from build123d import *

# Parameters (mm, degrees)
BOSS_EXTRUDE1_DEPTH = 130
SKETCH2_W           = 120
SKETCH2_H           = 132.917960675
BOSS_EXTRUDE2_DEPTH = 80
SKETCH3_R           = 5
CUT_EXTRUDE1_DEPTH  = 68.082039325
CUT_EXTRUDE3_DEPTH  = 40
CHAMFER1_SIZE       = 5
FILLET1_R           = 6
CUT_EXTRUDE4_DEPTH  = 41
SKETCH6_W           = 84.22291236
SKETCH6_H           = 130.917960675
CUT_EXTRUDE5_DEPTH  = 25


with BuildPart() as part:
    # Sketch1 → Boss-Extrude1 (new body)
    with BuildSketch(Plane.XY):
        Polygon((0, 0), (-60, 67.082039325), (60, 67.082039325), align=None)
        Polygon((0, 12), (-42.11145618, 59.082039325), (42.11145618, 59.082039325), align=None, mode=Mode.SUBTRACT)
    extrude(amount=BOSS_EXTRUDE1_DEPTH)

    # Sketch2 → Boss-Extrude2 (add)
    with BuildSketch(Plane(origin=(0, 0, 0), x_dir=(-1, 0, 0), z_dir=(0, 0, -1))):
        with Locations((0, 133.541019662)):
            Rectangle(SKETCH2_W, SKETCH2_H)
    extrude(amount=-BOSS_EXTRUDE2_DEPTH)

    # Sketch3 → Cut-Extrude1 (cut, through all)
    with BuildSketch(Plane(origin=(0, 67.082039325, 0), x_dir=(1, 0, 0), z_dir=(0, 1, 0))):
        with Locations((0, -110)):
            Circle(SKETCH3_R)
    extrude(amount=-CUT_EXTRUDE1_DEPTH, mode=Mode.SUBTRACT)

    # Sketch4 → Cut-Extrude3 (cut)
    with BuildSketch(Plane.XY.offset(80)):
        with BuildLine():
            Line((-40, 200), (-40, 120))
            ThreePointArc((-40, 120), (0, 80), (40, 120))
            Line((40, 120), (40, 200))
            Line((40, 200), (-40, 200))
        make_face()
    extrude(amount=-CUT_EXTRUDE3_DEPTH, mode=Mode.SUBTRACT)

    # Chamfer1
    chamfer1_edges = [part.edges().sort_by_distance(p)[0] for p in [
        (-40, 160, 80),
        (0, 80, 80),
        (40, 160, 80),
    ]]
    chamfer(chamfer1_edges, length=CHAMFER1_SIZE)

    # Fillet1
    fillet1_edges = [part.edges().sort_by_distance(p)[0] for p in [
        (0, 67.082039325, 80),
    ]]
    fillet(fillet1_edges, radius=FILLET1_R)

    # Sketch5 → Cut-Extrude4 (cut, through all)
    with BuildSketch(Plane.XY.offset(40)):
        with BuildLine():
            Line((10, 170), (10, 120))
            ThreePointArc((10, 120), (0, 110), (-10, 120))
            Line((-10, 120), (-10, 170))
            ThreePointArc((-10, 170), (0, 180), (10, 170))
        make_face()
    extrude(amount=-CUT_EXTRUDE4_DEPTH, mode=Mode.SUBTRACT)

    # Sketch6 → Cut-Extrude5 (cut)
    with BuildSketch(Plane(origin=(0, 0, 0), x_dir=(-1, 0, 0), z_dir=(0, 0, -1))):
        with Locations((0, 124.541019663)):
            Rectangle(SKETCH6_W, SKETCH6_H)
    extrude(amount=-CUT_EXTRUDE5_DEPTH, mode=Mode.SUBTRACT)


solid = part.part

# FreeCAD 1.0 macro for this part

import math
import FreeCAD as App
import Part
import Sketcher

V = App.Vector
Q = App.Units.Quantity


def edges_at(feature, points):
    """Names of the edges that pass closest to the given points."""
    edges = feature.Shape.Edges
    near = lambda p: min(range(len(edges)), key=lambda i: edges[i].distToShape(Part.Vertex(*p))[0])
    return sorted({f"Edge{near(p) + 1}" for p in points})

doc = App.newDocument("Part")
body = doc.addObject("PartDesign::Body", "Body")

sketch1 = body.newObject("Sketcher::SketchObject", "Sketch")
sketch1.AttachmentSupport = (doc.getObject("XY_Plane"), [""])
sketch1.MapMode = "FlatFace"
sketch1.addGeometry(Part.LineSegment(V(-60, 67, 0), V(0, 0, 0)), False)
sketch1.addGeometry(Part.LineSegment(V(0, 0, 0), V(60, 67, 0)), False)
sketch1.addGeometry(Part.LineSegment(V(60, 67, 0), V(-60, 67, 0)), False)
sketch1.addGeometry(Part.LineSegment(V(0, 12, 0), V(-42, 59, 0)), False)
sketch1.addGeometry(Part.LineSegment(V(-42, 59, 0), V(42, 59, 0)), False)
sketch1.addGeometry(Part.LineSegment(V(42, 59, 0), V(0, 12, 0)), False)
sketch1.addConstraint(Sketcher.Constraint("Coincident", 0, 2, 1, 1))
sketch1.addConstraint(Sketcher.Constraint("Coincident", 1, 2, 2, 1))
sketch1.addConstraint(Sketcher.Constraint("Coincident", 2, 2, 0, 1))
sketch1.addConstraint(Sketcher.Constraint("Coincident", 3, 2, 4, 1))
sketch1.addConstraint(Sketcher.Constraint("Coincident", 4, 2, 5, 1))
sketch1.addConstraint(Sketcher.Constraint("Coincident", 5, 2, 3, 1))
sketch1.addConstraint(Sketcher.Constraint("Horizontal", 2))
sketch1.addConstraint(Sketcher.Constraint("Horizontal", 4))
sketch1.addConstraint(Sketcher.Constraint("Coincident", 0, 2, -1, 1))
sketch1.addConstraint(Sketcher.Constraint("PointOnObject", 5, 2, -2))
sketch1.addConstraint(Sketcher.Constraint("Parallel", 0, 3))
sketch1.addConstraint(Sketcher.Constraint("Parallel", 1, 5))
sketch1.addConstraint(Sketcher.Constraint("Equal", 0, 1))
sketch1.addConstraint(Sketcher.Constraint("DistanceX", 2, 2, 2, 1, Q("120 mm")))
sketch1.addConstraint(Sketcher.Constraint("Distance", 0, Q("90 mm")))
sketch1.addConstraint(Sketcher.Constraint("DistanceY", -1, 1, 5, 2, Q("12 mm")))
sketch1.addConstraint(Sketcher.Constraint("DistanceY", 3, 2, 2, 2, Q("8 mm")))
pad1 = body.newObject("PartDesign::Pad", "Pad")
pad1.Profile = sketch1
pad1.Length = 130

sketch2 = body.newObject("Sketcher::SketchObject", "Sketch001")
sketch2.AttachmentSupport = (doc.getObject("XY_Plane"), [""])
sketch2.MapMode = "FlatFace"
sketch2.addGeometry(Part.LineSegment(V(60, 200, 0), V(60, 67, 0)), False)
sketch2.addGeometry(Part.LineSegment(V(60, 67, 0), V(-60, 67, 0)), False)
sketch2.addGeometry(Part.LineSegment(V(-60, 67, 0), V(-60, 200, 0)), False)
sketch2.addGeometry(Part.LineSegment(V(-60, 200, 0), V(60, 200, 0)), False)
sketch2.addConstraint(Sketcher.Constraint("Coincident", 0, 2, 1, 1))
sketch2.addConstraint(Sketcher.Constraint("Coincident", 1, 2, 2, 1))
sketch2.addConstraint(Sketcher.Constraint("Coincident", 2, 2, 3, 1))
sketch2.addConstraint(Sketcher.Constraint("Coincident", 3, 2, 0, 1))
sketch2.addConstraint(Sketcher.Constraint("Vertical", 0))
sketch2.addConstraint(Sketcher.Constraint("Horizontal", 1))
sketch2.addConstraint(Sketcher.Constraint("Vertical", 2))
sketch2.addConstraint(Sketcher.Constraint("Horizontal", 3))
sketch2.addConstraint(Sketcher.Constraint("DistanceX", 1, 2, 1, 1, Q("120 mm")))
sketch2.addConstraint(Sketcher.Constraint("DistanceX", -1, 1, 0, 2, Q("60 mm")))
sketch2.addConstraint(Sketcher.Constraint("DistanceY", -1, 1, 2, 2, Q("200 mm")))
sketch2.addConstraint(Sketcher.Constraint("DistanceY", 0, 2, 0, 1, Q("132.917961 mm")))
pad2 = body.newObject("PartDesign::Pad", "Pad001")
pad2.Profile = sketch2
pad2.Length = 80

sketch3 = body.newObject("Sketcher::SketchObject", "Sketch002")
sketch3.AttachmentSupport = (doc.getObject("XZ_Plane"), [""])
sketch3.MapMode = "FlatFace"
sketch3.AttachmentOffset = App.Placement(V(0, 0, -67.082039), App.Rotation())
sketch3.addGeometry(Part.Circle(V(0, 110, 0), V(0, 0, 1), 5), False)
sketch3.addConstraint(Sketcher.Constraint("PointOnObject", 0, 3, -2))
sketch3.addConstraint(Sketcher.Constraint("Diameter", 0, Q("10 mm")))
sketch3.addConstraint(Sketcher.Constraint("DistanceY", -1, 1, 0, 3, Q("110 mm")))
pocket1 = body.newObject("PartDesign::Pocket", "Pocket")
pocket1.Profile = sketch3
pocket1.Type = "ThroughAll"
pocket1.Reversed = True

sketch4 = body.newObject("Sketcher::SketchObject", "Sketch003")
sketch4.AttachmentSupport = (doc.getObject("XY_Plane"), [""])
sketch4.MapMode = "FlatFace"
sketch4.AttachmentOffset = App.Placement(V(0, 0, 80), App.Rotation())
sketch4.addGeometry(Part.LineSegment(V(-40, 200, 0), V(-40, 120, 0)), False)
sketch4.addGeometry(Part.ArcOfCircle(Part.Circle(V(0, 120, 0), V(0, 0, 1), 40), math.radians(180), math.radians(360)), False)
sketch4.addGeometry(Part.LineSegment(V(40, 120, 0), V(40, 200, 0)), False)
sketch4.addGeometry(Part.LineSegment(V(40, 200, 0), V(-40, 200, 0)), False)
sketch4.addConstraint(Sketcher.Constraint("Tangent", 0, 2, 1, 1))
sketch4.addConstraint(Sketcher.Constraint("Tangent", 1, 2, 2, 1))
sketch4.addConstraint(Sketcher.Constraint("Coincident", 2, 2, 3, 1))
sketch4.addConstraint(Sketcher.Constraint("Coincident", 3, 2, 0, 1))
sketch4.addConstraint(Sketcher.Constraint("Vertical", 0))
sketch4.addConstraint(Sketcher.Constraint("Vertical", 2))
sketch4.addConstraint(Sketcher.Constraint("Horizontal", 3))
sketch4.addConstraint(Sketcher.Constraint("PointOnObject", 1, 3, -2))
sketch4.addConstraint(Sketcher.Constraint("Equal", 3, 0))
sketch4.addConstraint(Sketcher.Constraint("Radius", 1, Q("40 mm")))
sketch4.addConstraint(Sketcher.Constraint("DistanceY", -1, 1, 1, 3, Q("120 mm")))
pocket2 = body.newObject("PartDesign::Pocket", "Pocket001")
pocket2.Profile = sketch4
pocket2.Length = 40
doc.recompute()

chamfer = body.newObject("PartDesign::Chamfer", "Chamfer")
chamfer.Base = (pocket2, edges_at(pocket2, [(-40, 160, 80), (0, 80, 80), (40, 160, 80)]))
chamfer.Size = 5
doc.recompute()

fillet = body.newObject("PartDesign::Fillet", "Fillet")
fillet.Base = (chamfer, edges_at(chamfer, [(0, 67.082, 80)]))
fillet.Radius = 6

sketch5 = body.newObject("Sketcher::SketchObject", "Sketch004")
sketch5.AttachmentSupport = (doc.getObject("XY_Plane"), [""])
sketch5.MapMode = "FlatFace"
sketch5.AttachmentOffset = App.Placement(V(0, 0, 40), App.Rotation())
sketch5.addGeometry(Part.LineSegment(V(10, 120, 0), V(10, 170, 0)), False)
sketch5.addGeometry(Part.ArcOfCircle(Part.Circle(V(0, 170, 0), V(0, 0, 1), 10), math.radians(0), math.radians(180)), False)
sketch5.addGeometry(Part.LineSegment(V(-10, 170, 0), V(-10, 120, 0)), False)
sketch5.addGeometry(Part.ArcOfCircle(Part.Circle(V(0, 120, 0), V(0, 0, 1), 10), math.radians(180), math.radians(360)), False)
sketch5.addConstraint(Sketcher.Constraint("Tangent", 0, 2, 1, 1))
sketch5.addConstraint(Sketcher.Constraint("Tangent", 1, 2, 2, 1))
sketch5.addConstraint(Sketcher.Constraint("Tangent", 2, 2, 3, 1))
sketch5.addConstraint(Sketcher.Constraint("Tangent", 3, 2, 0, 1))
sketch5.addConstraint(Sketcher.Constraint("Vertical", 0))
sketch5.addConstraint(Sketcher.Constraint("Vertical", 2))
sketch5.addConstraint(Sketcher.Constraint("PointOnObject", 1, 3, -2))
sketch5.addConstraint(Sketcher.Constraint("Radius", 1, Q("10 mm")))
sketch5.addConstraint(Sketcher.Constraint("DistanceY", 0, 1, 0, 2, Q("50 mm")))
sketch5.addConstraint(Sketcher.Constraint("DistanceY", -1, 1, 1, 3, Q("170 mm")))
pocket3 = body.newObject("PartDesign::Pocket", "Pocket002")
pocket3.Profile = sketch5
pocket3.Type = "ThroughAll"

sketch6 = body.newObject("Sketcher::SketchObject", "Sketch005")
sketch6.AttachmentSupport = (doc.getObject("XY_Plane"), [""])
sketch6.MapMode = "FlatFace"
sketch6.addGeometry(Part.LineSegment(V(42, 190, 0), V(42, 59, 0)), False)
sketch6.addGeometry(Part.LineSegment(V(42, 59, 0), V(-42, 59, 0)), False)
sketch6.addGeometry(Part.LineSegment(V(-42, 59, 0), V(-42, 190, 0)), False)
sketch6.addGeometry(Part.LineSegment(V(-42, 190, 0), V(42, 190, 0)), False)
sketch6.addConstraint(Sketcher.Constraint("Coincident", 0, 2, 1, 1))
sketch6.addConstraint(Sketcher.Constraint("Coincident", 1, 2, 2, 1))
sketch6.addConstraint(Sketcher.Constraint("Coincident", 2, 2, 3, 1))
sketch6.addConstraint(Sketcher.Constraint("Coincident", 3, 2, 0, 1))
sketch6.addConstraint(Sketcher.Constraint("Vertical", 0))
sketch6.addConstraint(Sketcher.Constraint("Horizontal", 1))
sketch6.addConstraint(Sketcher.Constraint("Vertical", 2))
sketch6.addConstraint(Sketcher.Constraint("Horizontal", 3))
sketch6.addConstraint(Sketcher.Constraint("DistanceY", -1, 1, 2, 2, Q("190 mm")))
sketch6.addConstraint(Sketcher.Constraint("DistanceY", 0, 2, 0, 1, Q("130.917961 mm")))
sketch6.addConstraint(Sketcher.Constraint("DistanceX", 1, 2, 1, 1, Q("84.222912 mm")))
sketch6.addConstraint(Sketcher.Constraint("DistanceX", -1, 1, 0, 2, Q("42.111456 mm")))
pocket4 = body.newObject("PartDesign::Pocket", "Pocket003")
pocket4.Profile = sketch6
pocket4.Length = 25
pocket4.Reversed = True

doc.recompute()
